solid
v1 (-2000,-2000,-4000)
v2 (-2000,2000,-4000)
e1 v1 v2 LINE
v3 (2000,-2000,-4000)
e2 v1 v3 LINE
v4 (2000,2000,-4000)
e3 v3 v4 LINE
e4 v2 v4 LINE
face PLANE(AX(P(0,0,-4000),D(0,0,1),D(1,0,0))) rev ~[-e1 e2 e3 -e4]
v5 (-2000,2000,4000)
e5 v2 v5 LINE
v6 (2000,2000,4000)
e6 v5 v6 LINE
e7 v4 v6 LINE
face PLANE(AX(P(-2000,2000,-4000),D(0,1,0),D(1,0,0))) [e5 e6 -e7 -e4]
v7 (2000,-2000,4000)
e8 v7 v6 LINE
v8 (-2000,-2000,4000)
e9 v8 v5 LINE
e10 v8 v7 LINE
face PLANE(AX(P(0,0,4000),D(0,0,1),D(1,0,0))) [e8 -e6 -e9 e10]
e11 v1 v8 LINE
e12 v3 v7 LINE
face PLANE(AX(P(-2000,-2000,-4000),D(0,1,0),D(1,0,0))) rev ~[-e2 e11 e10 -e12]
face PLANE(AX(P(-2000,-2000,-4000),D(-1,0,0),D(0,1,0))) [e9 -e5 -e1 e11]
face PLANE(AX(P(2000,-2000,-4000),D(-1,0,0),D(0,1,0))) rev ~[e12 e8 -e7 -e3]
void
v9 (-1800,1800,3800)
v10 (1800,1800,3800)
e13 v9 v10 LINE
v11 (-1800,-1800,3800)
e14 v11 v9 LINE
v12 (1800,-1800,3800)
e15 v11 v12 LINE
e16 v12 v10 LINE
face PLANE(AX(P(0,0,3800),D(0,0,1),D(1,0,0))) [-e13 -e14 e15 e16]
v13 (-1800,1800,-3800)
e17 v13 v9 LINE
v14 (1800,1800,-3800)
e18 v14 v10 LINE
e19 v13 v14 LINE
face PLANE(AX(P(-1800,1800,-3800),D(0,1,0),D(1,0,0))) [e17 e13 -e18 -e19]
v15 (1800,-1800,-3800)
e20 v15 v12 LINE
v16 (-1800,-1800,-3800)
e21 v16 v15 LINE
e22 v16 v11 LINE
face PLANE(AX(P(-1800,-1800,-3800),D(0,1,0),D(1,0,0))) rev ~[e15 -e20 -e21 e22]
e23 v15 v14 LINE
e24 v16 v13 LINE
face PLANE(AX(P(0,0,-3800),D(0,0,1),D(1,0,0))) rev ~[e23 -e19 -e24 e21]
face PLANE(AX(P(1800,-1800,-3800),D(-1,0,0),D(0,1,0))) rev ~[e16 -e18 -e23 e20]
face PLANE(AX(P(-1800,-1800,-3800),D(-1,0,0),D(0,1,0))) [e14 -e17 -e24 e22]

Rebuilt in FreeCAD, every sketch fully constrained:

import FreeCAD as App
import Part
import Sketcher
from FreeCAD import Vector
Q = App.Units.Quantity


def add_polygon(sketch, points):
    """Adds a closed chain of lines whose ends are joined by coincident constraints."""
    first, n = sketch.GeometryCount, len(points)
    for a, b in zip(points, points[1:] + points[:1]):
        sketch.addGeometry(Part.LineSegment(App.Vector(*a, 0), App.Vector(*b, 0)), False)
    for i in range(n):
        sketch.addConstraint(Sketcher.Constraint("Coincident", first + i, 2, first + (i + 1) % n, 1))

doc = App.newDocument("Part")
body = doc.addObject("PartDesign::Body", "Body")

# Sketch on XY plane
sketch1 = doc.addObject("Sketcher::SketchObject", "Sketch")
body.addObject(sketch1)
sketch1.AttachmentSupport = (doc.XY_Plane, [""])
sketch1.MapMode = "FlatFace"
sketch1.AttachmentOffset = App.Placement(Vector(0, 0, -3800), App.Rotation())
add_polygon(sketch1, [(-1800, 1800), (-1800, -1800), (1800, -1800), (1800, 1800)])  # lines 0-3
sketch1.addConstraint([
    Sketcher.Constraint("Vertical", 0),
    Sketcher.Constraint("Horizontal", 1),
    Sketcher.Constraint("Vertical", 2),
    Sketcher.Constraint("Horizontal", 3),
    Sketcher.Constraint("Symmetric", 0, 2, 2, 2, -1, 1),
    Sketcher.Constraint("Equal", 3, 0),
    Sketcher.Constraint("DistanceX", 1, 1, 1, 2, Q("3600 mm")),
])
pad1 = doc.addObject("PartDesign::Pad", "Pad")
body.addObject(pad1)
pad1.Profile = sketch1
pad1.Length = 7600
body2 = doc.addObject("PartDesign::Body", "Body001")

# Sketch on XY plane
sketch2 = doc.addObject("Sketcher::SketchObject", "Sketch001")
body2.addObject(sketch2)
sketch2.AttachmentSupport = (doc.getObject("XY_Plane001"), [""])
sketch2.MapMode = "FlatFace"
sketch2.AttachmentOffset = App.Placement(Vector(0, 0, -4000), App.Rotation())
add_polygon(sketch2, [(-2000, 2000), (-2000, -2000), (2000, -2000), (2000, 2000)])  # lines 0-3
sketch2.addConstraint([
    Sketcher.Constraint("Vertical", 0),
    Sketcher.Constraint("Horizontal", 1),
    Sketcher.Constraint("Vertical", 2),
    Sketcher.Constraint("Horizontal", 3),
    Sketcher.Constraint("Symmetric", 0, 2, 2, 2, -1, 1),
    Sketcher.Constraint("Equal", 3, 0),
    Sketcher.Constraint("DistanceX", 1, 1, 1, 2, Q("4000 mm")),
])
pad2 = doc.addObject("PartDesign::Pad", "Pad001")
body2.addObject(pad2)
pad2.Profile = sketch2
pad2.Length = 8000
doc.recompute()

boolean = doc.addObject("PartDesign::Boolean", "Boolean")
body2.addObject(boolean)
boolean.Type = "Cut"
boolean.addObjects([body])

doc.recompute()
